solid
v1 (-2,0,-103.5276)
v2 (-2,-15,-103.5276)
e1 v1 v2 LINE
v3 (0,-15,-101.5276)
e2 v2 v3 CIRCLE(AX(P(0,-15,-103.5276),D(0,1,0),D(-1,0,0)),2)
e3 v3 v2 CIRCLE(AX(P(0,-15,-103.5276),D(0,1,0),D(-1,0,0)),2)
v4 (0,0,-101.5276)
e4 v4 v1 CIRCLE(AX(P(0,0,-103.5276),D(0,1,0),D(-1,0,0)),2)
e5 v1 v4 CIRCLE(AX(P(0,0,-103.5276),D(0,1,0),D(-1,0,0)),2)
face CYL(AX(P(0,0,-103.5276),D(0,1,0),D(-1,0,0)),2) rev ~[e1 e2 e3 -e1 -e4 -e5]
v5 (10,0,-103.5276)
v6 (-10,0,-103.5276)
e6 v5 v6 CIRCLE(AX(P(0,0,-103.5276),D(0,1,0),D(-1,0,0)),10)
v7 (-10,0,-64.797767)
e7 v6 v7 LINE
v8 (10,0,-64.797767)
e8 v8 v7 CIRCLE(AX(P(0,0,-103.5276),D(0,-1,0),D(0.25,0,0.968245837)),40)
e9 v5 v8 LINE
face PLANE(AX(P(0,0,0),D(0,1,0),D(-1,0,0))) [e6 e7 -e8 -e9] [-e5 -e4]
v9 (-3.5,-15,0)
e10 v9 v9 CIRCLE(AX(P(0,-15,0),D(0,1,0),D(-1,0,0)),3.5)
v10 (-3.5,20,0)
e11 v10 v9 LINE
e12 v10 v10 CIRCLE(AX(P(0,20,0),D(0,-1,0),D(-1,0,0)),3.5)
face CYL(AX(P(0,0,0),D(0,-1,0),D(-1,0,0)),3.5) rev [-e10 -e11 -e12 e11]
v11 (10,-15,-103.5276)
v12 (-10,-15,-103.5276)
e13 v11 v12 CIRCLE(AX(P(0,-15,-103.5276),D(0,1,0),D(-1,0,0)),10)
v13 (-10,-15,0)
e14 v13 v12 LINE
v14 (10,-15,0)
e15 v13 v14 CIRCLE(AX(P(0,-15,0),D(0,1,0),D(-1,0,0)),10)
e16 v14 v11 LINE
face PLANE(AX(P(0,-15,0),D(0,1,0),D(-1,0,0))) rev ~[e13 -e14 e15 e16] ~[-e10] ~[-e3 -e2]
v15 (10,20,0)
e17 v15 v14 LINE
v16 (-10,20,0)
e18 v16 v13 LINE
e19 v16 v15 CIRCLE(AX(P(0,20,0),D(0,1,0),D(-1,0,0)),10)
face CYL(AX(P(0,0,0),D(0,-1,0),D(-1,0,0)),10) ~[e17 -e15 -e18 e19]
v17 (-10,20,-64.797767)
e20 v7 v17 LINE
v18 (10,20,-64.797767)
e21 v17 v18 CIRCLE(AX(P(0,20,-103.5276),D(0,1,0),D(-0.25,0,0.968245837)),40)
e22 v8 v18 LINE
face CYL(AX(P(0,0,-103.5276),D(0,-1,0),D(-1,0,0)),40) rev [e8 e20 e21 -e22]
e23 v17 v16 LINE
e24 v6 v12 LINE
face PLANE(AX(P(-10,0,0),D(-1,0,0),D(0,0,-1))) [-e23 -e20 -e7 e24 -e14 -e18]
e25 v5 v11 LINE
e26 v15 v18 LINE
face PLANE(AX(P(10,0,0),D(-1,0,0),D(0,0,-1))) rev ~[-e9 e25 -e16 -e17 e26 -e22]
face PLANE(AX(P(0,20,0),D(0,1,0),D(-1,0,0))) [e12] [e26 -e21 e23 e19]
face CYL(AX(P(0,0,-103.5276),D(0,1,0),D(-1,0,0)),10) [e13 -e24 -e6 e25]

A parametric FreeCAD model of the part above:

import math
import FreeCAD as App
import Part
import Sketcher

V = App.Vector
Q = App.Units.Quantity

doc = App.newDocument("Part")
body = doc.addObject("PartDesign::Body", "Body")

sketch1 = body.newObject("Sketcher::SketchObject", "Sketch")
sketch1.AttachmentSupport = (doc.getObject("XZ_Plane"), [""])
sketch1.MapMode = "FlatFace"
sketch1.addGeometry(Part.LineSegment(V(10, 0, 0), V(10, -64.797767, 0)), False)
sketch1.addGeometry(Part.ArcOfCircle(Part.Circle(V(0, -103.5276, 0), V(0, 0, 1), 40), math.radians(75.522488), math.radians(104.477512)), False)
sketch1.addGeometry(Part.LineSegment(V(-10, -64.797767, 0), V(-10, 0, 0)), False)
sketch1.addGeometry(Part.ArcOfCircle(Part.Circle(V(0, 0, 0), V(0, 0, 1), 10), math.radians(0), math.radians(180)), False)
sketch1.addGeometry(Part.Circle(V(0, 0, 0), V(0, 0, 1), 3.5), False)
sketch1.addConstraint(Sketcher.Constraint("Coincident", 0, 2, 1, 1))
sketch1.addConstraint(Sketcher.Constraint("Coincident", 1, 2, 2, 1))
sketch1.addConstraint(Sketcher.Constraint("Tangent", 2, 2, 3, 2))
sketch1.addConstraint(Sketcher.Constraint("Tangent", 3, 1, 0, 1))
sketch1.addConstraint(Sketcher.Constraint("Vertical", 0))
sketch1.addConstraint(Sketcher.Constraint("Vertical", 2))
sketch1.addConstraint(Sketcher.Constraint("Coincident", 3, 3, -1, 1))
sketch1.addConstraint(Sketcher.Constraint("Coincident", 4, 3, -1, 1))
sketch1.addConstraint(Sketcher.Constraint("PointOnObject", 1, 3, -2))
sketch1.addConstraint(Sketcher.Constraint("Diameter", 4, Q("7 mm")))
sketch1.addConstraint(Sketcher.Constraint("Radius", 1, Q("40 mm")))
sketch1.addConstraint(Sketcher.Constraint("Radius", 3, Q("10 mm")))
sketch1.addConstraint(Sketcher.Constraint("DistanceY", 0, 2, 0, 1, Q("64.7978 mm")))
pad1 = body.newObject("PartDesign::Pad", "Pad")
pad1.Profile = sketch1
pad1.Length = 20
pad1.Reversed = True

sketch2 = body.newObject("Sketcher::SketchObject", "Sketch001")
sketch2.AttachmentSupport = (doc.getObject("XZ_Plane"), [""])
sketch2.MapMode = "FlatFace"
sketch2.addGeometry(Part.ArcOfCircle(Part.Circle(V(0, -103.5276, 0), V(0, 0, 1), 10), math.radians(180), math.radians(360)), False)
sketch2.addGeometry(Part.LineSegment(V(-10, -103.5276, 0), V(-10, 0, 0)), False)
sketch2.addGeometry(Part.ArcOfCircle(Part.Circle(V(0, 0, 0), V(0, 0, 1), 10), math.radians(0), math.radians(180)), False)
sketch2.addGeometry(Part.LineSegment(V(10, 0, 0), V(10, -103.5276, 0)), False)
sketch2.addGeometry(Part.Circle(V(0, -103.5276, 0), V(0, 0, 1), 2), False)
sketch2.addGeometry(Part.Circle(V(0, 0, 0), V(0, 0, 1), 3.5), False)
sketch2.addConstraint(Sketcher.Constraint("Tangent", 0, 1, 1, 1))
sketch2.addConstraint(Sketcher.Constraint("Tangent", 1, 2, 2, 2))
sketch2.addConstraint(Sketcher.Constraint("Tangent", 2, 1, 3, 1))
sketch2.addConstraint(Sketcher.Constraint("Tangent", 3, 2, 0, 2))
sketch2.addConstraint(Sketcher.Constraint("Vertical", 1))
sketch2.addConstraint(Sketcher.Constraint("Vertical", 3))
sketch2.addConstraint(Sketcher.Constraint("Coincident", 2, 3, -1, 1))
sketch2.addConstraint(Sketcher.Constraint("Coincident", 5, 3, -1, 1))
sketch2.addConstraint(Sketcher.Constraint("Coincident", 4, 3, 0, 3))
sketch2.addConstraint(Sketcher.Constraint("Diameter", 4, Q("4 mm")))
sketch2.addConstraint(Sketcher.Constraint("Diameter", 5, Q("7 mm")))
sketch2.addConstraint(Sketcher.Constraint("Radius", 0, Q("10 mm")))
sketch2.addConstraint(Sketcher.Constraint("DistanceY", 1, 1, 1, 2, Q("103.5276 mm")))
pad2 = body.newObject("PartDesign::Pad", "Pad001")
pad2.Profile = sketch2
pad2.Length = 15

doc.recompute()
